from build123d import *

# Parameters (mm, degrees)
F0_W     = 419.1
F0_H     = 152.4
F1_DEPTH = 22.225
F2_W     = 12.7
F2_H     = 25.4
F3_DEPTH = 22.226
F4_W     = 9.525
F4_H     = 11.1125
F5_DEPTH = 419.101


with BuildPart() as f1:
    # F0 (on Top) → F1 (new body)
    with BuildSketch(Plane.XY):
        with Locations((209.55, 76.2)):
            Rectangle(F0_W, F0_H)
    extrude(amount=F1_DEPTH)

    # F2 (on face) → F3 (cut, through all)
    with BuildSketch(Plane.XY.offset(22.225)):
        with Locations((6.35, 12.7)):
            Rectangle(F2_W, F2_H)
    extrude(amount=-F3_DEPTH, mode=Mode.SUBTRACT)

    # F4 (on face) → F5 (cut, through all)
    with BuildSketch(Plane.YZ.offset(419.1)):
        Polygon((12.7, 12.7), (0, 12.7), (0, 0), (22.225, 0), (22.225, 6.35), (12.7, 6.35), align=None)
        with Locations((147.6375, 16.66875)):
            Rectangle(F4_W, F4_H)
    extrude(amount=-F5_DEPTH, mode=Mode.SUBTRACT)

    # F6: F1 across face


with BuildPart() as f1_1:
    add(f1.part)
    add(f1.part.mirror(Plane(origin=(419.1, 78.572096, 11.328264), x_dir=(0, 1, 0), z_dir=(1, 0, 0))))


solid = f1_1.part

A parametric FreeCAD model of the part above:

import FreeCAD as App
import Part
import Sketcher

V = App.Vector
Q = App.Units.Quantity


def add_polygon(sketch, points):
    """Adds a closed chain of lines whose ends are joined by coincident constraints."""
    first, n = sketch.GeometryCount, len(points)
    for a, b in zip(points, points[1:] + points[:1]):
        sketch.addGeometry(Part.LineSegment(App.Vector(*a, 0), App.Vector(*b, 0)), False)
    for i in range(n):
        sketch.addConstraint(Sketcher.Constraint("Coincident", first + i, 2, first + (i + 1) % n, 1))

doc = App.newDocument("Part")
body = doc.addObject("PartDesign::Body", "Body")

# Sketch on XY plane
sketch1 = body.newObject("Sketcher::SketchObject", "Sketch")
sketch1.AttachmentSupport = (doc.getObject("XY_Plane"), [""])
sketch1.MapMode = "FlatFace"
add_polygon(sketch1, [(0, 152.4), (0, 0), (419.1, 0), (419.1, 152.4)])  # lines 0-3
sketch1.addConstraint([
    Sketcher.Constraint("Vertical", 0),
    Sketcher.Constraint("Horizontal", 1),
    Sketcher.Constraint("Vertical", 2),
    Sketcher.Constraint("Horizontal", 3),
    Sketcher.Constraint("Coincident", 0, 2, -1, 1),
    Sketcher.Constraint("DistanceY", 0, 2, 0, 1, Q("6 in")),
    Sketcher.Constraint("DistanceX", 1, 1, 1, 2, Q("16.5 in")),
])
pad1 = body.newObject("PartDesign::Pad", "Pad")
pad1.Profile = sketch1
pad1.Length = Q("0.875 in")

# Sketch on XY plane
sketch2 = body.newObject("Sketcher::SketchObject", "Sketch001")
sketch2.AttachmentSupport = (doc.getObject("XY_Plane"), [""])
sketch2.MapMode = "FlatFace"
sketch2.AttachmentOffset = App.Placement(V(0, 0, 0.875 * 25.4), App.Rotation())
add_polygon(sketch2, [(0, 25.4), (0, 0), (12.7, 0), (12.7, 25.4)])  # lines 0-3
sketch2.addConstraint([
    Sketcher.Constraint("Vertical", 0),
    Sketcher.Constraint("Horizontal", 1),
    Sketcher.Constraint("Vertical", 2),
    Sketcher.Constraint("Horizontal", 3),
    Sketcher.Constraint("Coincident", 0, 2, -1, 1),
    Sketcher.Constraint("DistanceY", 0, 2, 0, 1, Q("1 in")),
    Sketcher.Constraint("DistanceX", 1, 1, 1, 2, Q("0.5 in")),
])
pocket1 = body.newObject("PartDesign::Pocket", "Pocket")
pocket1.Profile = sketch2
pocket1.Type = "ThroughAll"

# Sketch on YZ plane
sketch3 = body.newObject("Sketcher::SketchObject", "Sketch002")
sketch3.AttachmentSupport = (doc.getObject("YZ_Plane"), [""])
sketch3.MapMode = "FlatFace"
sketch3.AttachmentOffset = App.Placement(V(0, 0, 16.5 * 25.4), App.Rotation())
add_polygon(sketch3, [(12.7, 12.7), (0, 12.7), (0, 0), (22.225, 0), (22.225, 6.35), (12.7, 6.35)])  # lines 0-5
add_polygon(sketch3, [(142.875, 22.225), (142.875, 11.1125), (152.4, 11.1125), (152.4, 22.225)])  # lines 6-9
sketch3.addConstraint([
    Sketcher.Constraint("Horizontal", 0),
    Sketcher.Constraint("Vertical", 1),
    Sketcher.Constraint("Horizontal", 2),
    Sketcher.Constraint("Vertical", 3),
    Sketcher.Constraint("Horizontal", 4),
    Sketcher.Constraint("Vertical", 5),
    Sketcher.Constraint("Vertical", 6),
    Sketcher.Constraint("Horizontal", 7),
    Sketcher.Constraint("Vertical", 8),
    Sketcher.Constraint("Horizontal", 9),
    Sketcher.Constraint("Coincident", 1, 2, -1, 1),
    Sketcher.Constraint("Equal", 4, 7),
    Sketcher.Constraint("Equal", 0, 1),
    Sketcher.Constraint("Equal", 3, 5),
    Sketcher.Constraint("DistanceX", 0, 2, 0, 1, Q("0.5 in")),
    Sketcher.Constraint("DistanceX", -1, 1, 7, 2, Q("6 in")),
    Sketcher.Constraint("DistanceX", 2, 1, 2, 2, Q("0.875 in")),
    Sketcher.Constraint("DistanceY", 6, 2, 6, 1, Q("0.4375 in")),
    Sketcher.Constraint("DistanceY", -1, 1, 6, 2, Q("0.4375 in")),
])
pocket2 = body.newObject("PartDesign::Pocket", "Pocket001")
pocket2.Profile = sketch3
pocket2.Type = "ThroughAll"
body2 = doc.addObject("PartDesign::Body", "Body001")
doc.recompute()

body2.BaseFeature = body
doc.recompute()

mirroring = doc.addObject("Part::Mirroring", "Mirroring")
mirroring.Source = body
mirroring.Base = V(419.1, 78.572096, 11.328264)
mirroring.Normal = V(1, 0, 0)
body3 = doc.addObject("PartDesign::Body", "Body002")
body3.BaseFeature = mirroring
boolean = body2.newObject("PartDesign::Boolean", "Boolean")
boolean.Type = "Fuse"
boolean.addObjects([body3])
doc.recompute()
mirroring.Visibility = False

doc.recompute()
